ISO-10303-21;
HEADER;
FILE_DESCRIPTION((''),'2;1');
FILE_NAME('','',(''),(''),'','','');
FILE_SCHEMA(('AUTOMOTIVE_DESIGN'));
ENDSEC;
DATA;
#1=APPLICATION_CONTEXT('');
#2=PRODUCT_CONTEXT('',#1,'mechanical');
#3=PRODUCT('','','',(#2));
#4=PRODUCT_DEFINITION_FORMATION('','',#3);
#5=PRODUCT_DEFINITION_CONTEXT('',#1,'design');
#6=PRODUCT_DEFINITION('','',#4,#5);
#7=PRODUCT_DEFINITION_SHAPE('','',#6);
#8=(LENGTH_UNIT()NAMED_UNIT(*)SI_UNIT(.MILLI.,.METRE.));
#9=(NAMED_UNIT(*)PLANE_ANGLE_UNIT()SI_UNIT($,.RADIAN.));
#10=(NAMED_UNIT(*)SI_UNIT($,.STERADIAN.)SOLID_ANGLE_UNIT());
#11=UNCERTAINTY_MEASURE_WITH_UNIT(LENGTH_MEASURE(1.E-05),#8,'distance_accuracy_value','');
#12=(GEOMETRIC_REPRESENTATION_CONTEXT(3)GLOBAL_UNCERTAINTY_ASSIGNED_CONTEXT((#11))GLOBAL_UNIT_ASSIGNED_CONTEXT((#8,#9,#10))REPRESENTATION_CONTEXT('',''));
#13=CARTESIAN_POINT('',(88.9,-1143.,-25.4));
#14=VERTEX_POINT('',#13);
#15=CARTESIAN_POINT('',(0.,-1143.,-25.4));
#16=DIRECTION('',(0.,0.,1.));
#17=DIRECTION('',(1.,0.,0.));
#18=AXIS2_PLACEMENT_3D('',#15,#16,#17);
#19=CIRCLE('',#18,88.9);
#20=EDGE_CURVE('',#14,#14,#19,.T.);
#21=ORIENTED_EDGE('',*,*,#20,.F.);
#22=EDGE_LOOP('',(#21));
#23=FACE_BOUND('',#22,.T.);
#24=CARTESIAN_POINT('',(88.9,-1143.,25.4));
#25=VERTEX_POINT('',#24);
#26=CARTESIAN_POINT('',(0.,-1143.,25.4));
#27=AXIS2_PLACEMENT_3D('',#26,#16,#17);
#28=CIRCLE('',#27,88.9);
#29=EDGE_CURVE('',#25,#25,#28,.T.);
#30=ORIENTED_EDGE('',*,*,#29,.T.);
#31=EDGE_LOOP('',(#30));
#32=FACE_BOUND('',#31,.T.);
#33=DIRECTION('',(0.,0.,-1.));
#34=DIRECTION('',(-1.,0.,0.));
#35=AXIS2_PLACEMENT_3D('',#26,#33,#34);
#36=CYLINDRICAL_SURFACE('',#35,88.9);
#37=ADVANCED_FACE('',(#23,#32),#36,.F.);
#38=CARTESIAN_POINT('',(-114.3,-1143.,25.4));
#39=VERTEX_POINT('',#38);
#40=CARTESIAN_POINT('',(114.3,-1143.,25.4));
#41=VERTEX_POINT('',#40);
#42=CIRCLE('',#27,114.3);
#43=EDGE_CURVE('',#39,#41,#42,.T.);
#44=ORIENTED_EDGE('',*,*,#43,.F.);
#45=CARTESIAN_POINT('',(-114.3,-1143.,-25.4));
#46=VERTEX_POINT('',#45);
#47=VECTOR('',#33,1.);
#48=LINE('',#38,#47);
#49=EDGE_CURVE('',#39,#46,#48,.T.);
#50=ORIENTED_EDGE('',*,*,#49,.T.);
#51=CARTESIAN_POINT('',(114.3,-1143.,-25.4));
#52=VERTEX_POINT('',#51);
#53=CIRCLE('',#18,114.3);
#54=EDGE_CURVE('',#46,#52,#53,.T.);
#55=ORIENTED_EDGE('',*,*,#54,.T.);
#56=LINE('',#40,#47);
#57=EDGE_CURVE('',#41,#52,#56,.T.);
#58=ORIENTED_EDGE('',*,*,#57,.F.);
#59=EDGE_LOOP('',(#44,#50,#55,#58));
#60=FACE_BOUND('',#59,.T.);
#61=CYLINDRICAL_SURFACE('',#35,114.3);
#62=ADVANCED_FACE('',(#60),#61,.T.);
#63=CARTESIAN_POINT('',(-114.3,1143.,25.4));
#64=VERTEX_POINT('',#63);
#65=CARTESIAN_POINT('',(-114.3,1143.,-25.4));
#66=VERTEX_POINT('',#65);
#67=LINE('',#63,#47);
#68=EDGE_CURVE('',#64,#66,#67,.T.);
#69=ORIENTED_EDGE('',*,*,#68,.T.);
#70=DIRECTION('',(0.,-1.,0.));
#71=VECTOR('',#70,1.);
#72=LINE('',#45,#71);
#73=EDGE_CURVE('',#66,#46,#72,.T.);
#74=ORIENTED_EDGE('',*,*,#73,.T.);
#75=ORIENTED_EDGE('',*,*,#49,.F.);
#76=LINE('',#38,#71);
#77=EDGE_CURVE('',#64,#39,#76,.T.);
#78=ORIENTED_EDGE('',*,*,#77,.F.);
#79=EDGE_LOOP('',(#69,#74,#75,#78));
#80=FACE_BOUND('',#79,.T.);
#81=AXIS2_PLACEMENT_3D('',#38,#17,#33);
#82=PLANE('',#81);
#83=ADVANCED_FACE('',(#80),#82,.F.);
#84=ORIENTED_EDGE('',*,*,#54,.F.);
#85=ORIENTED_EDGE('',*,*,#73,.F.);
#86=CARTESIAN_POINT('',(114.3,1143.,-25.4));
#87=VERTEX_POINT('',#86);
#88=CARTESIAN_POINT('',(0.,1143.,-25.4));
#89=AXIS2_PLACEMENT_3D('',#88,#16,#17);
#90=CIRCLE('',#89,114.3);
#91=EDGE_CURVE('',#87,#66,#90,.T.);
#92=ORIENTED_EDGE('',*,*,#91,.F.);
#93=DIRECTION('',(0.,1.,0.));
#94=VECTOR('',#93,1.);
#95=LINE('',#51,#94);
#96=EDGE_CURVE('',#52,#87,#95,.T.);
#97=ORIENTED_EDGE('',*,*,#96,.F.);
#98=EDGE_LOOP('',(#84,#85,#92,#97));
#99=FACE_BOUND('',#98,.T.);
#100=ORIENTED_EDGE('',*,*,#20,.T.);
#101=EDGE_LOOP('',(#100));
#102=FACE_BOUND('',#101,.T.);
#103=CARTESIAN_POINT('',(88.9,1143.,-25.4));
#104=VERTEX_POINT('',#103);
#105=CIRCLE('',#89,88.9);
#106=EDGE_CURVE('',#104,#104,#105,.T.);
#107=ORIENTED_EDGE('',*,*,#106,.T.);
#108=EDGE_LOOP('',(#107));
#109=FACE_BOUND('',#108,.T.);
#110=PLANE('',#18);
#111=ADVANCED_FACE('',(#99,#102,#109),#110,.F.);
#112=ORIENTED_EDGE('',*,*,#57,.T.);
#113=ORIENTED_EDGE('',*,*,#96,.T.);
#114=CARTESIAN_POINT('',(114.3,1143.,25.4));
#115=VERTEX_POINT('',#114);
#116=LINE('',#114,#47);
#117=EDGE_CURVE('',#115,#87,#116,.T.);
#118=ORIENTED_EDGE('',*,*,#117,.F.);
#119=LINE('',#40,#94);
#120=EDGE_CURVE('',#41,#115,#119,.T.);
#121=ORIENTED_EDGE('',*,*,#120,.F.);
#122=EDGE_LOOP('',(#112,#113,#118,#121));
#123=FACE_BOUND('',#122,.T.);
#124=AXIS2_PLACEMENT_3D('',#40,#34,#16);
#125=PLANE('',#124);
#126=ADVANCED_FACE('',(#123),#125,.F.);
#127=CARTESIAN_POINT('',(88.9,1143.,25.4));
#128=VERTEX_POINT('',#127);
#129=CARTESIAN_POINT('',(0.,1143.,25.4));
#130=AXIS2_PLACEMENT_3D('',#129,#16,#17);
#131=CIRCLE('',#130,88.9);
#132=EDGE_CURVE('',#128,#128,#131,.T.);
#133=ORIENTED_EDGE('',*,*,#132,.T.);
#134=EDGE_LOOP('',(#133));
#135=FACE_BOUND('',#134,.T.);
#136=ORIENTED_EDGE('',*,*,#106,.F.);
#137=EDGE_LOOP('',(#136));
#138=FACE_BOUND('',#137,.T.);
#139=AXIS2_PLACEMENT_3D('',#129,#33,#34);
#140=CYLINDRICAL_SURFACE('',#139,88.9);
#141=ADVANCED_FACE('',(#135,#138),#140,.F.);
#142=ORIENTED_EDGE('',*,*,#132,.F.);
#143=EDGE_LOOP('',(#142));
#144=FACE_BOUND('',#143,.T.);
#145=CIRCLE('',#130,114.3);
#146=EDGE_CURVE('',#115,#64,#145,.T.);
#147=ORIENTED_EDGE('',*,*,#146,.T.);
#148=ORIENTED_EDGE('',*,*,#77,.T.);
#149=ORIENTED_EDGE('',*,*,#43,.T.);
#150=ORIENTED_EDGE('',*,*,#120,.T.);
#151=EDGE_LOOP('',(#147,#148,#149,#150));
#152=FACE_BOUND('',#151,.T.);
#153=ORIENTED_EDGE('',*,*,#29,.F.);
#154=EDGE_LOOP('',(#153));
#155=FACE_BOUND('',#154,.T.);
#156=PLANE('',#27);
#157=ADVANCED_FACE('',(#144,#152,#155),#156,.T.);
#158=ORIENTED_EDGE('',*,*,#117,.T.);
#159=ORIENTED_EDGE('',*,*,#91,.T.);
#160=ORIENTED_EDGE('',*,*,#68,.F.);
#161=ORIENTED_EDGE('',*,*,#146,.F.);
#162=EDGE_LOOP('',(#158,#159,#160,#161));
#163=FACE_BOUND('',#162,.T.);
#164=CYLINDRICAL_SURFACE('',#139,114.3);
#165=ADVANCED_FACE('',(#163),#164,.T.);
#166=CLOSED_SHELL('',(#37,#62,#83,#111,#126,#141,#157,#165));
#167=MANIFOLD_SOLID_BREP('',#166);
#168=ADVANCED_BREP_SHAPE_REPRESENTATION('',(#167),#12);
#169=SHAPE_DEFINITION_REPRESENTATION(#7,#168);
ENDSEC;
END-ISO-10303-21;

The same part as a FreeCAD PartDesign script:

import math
import FreeCAD as App
import Part
import Sketcher
from FreeCAD import Vector
Q = App.Units.Quantity

doc = App.newDocument("Part")
body = doc.addObject("PartDesign::Body", "Body")

# Sketch on XY plane
sketch1 = doc.addObject("Sketcher::SketchObject", "Sketch")
body.addObject(sketch1)
sketch1.AttachmentSupport = (doc.XY_Plane, [""])
sketch1.MapMode = "FlatFace"
sketch1.addGeometry([
    Part.LineSegment(Vector(-114.3, 1143, 0), Vector(-114.3, -1143, 0)),  # 0
    Part.ArcOfCircle(Part.Circle(Vector(0, -1143, 0), Vector(0, 0, 1), 114.3), math.radians(180), math.radians(360)),  # 1
    Part.LineSegment(Vector(114.3, -1143, 0), Vector(114.3, 1143, 0)),  # 2
    Part.ArcOfCircle(Part.Circle(Vector(0, 1143, 0), Vector(0, 0, 1), 114.3), math.radians(0), math.radians(180)),  # 3
    Part.Circle(Vector(0, -1143, 0), Vector(0, 0, 1), 88.9),  # 4
    Part.Circle(Vector(0, 1143, 0), Vector(0, 0, 1), 88.9),  # 5
], False)
sketch1.addConstraint([
    Sketcher.Constraint("Tangent", 0, 2, 1, 1),
    Sketcher.Constraint("Tangent", 1, 2, 2, 1),
    Sketcher.Constraint("Tangent", 2, 2, 3, 1),
    Sketcher.Constraint("Tangent", 3, 2, 0, 1),
    Sketcher.Constraint("Vertical", 0),
    Sketcher.Constraint("Vertical", 2),
    Sketcher.Constraint("Coincident", 4, 3, 1, 3),
    Sketcher.Constraint("Coincident", 5, 3, 3, 3),
    Sketcher.Constraint("Equal", 4, 5),
    Sketcher.Constraint("Symmetric", 1, 3, 3, 3, -1, 1),
    Sketcher.Constraint("Diameter", 4, Q("7 in")),
    Sketcher.Constraint("Radius", 1, Q("4.5 in")),
    Sketcher.Constraint("DistanceY", 0, 2, 0, 1, Q("90 in")),
])
pad1 = doc.addObject("PartDesign::Pad", "Pad")
body.addObject(pad1)
pad1.Profile = sketch1
pad1.Length = Q("2 in")
pad1.Midplane = True

doc.recompute()
